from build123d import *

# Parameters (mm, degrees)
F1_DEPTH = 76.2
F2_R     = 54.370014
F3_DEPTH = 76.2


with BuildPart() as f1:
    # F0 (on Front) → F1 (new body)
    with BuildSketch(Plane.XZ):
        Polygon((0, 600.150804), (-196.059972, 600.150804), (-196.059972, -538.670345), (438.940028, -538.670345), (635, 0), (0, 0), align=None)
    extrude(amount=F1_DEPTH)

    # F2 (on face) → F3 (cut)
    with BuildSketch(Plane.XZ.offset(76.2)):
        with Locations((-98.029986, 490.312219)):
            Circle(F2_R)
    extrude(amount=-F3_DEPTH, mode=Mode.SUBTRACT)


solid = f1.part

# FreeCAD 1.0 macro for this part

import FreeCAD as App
import Part
import Sketcher
from FreeCAD import Vector
Q = App.Units.Quantity


def add_polygon(sketch, points):
    """Adds a closed chain of lines whose ends are joined by coincident constraints."""
    first, n = sketch.GeometryCount, len(points)
    for a, b in zip(points, points[1:] + points[:1]):
        sketch.addGeometry(Part.LineSegment(App.Vector(*a, 0), App.Vector(*b, 0)), False)
    for i in range(n):
        sketch.addConstraint(Sketcher.Constraint("Coincident", first + i, 2, first + (i + 1) % n, 1))

doc = App.newDocument("Part")
body = doc.addObject("PartDesign::Body", "Body")

# Sketch on XZ plane
sketch1 = doc.addObject("Sketcher::SketchObject", "Sketch")
body.addObject(sketch1)
sketch1.AttachmentSupport = (doc.XZ_Plane, [""])
sketch1.MapMode = "FlatFace"
add_polygon(sketch1, [(0, 600), (-196, 600), (-196, -539), (439, -539), (635, 0), (0, 0)])  # lines 0-5
sketch1.addConstraint([
    Sketcher.Constraint("Horizontal", 0),
    Sketcher.Constraint("Vertical", 1),
    Sketcher.Constraint("Horizontal", 2),
    Sketcher.Constraint("Horizontal", 4),
    Sketcher.Constraint("Vertical", 5),
    Sketcher.Constraint("Coincident", 4, 2, -1, 1),
    Sketcher.Constraint("Equal", 2, 4),
    Sketcher.Constraint("DistanceX", 2, 1, 2, 2, Q("25 in")),
    Sketcher.Constraint("Angle", 3, Q("70 deg")),
    Sketcher.Constraint("DistanceX", 0, 2, 0, 1, 196.059972),
    Sketcher.Constraint("DistanceY", 1, 2, 1, 1, 1138.821149),
])
pad1 = doc.addObject("PartDesign::Pad", "Pad")
body.addObject(pad1)
pad1.Profile = sketch1
pad1.Length = Q("3 in")

# Sketch on XZ plane
sketch2 = doc.addObject("Sketcher::SketchObject", "Sketch001")
body.addObject(sketch2)
sketch2.AttachmentSupport = (doc.XZ_Plane, [""])
sketch2.MapMode = "FlatFace"
sketch2.AttachmentOffset = App.Placement(Vector(0, 0, 3 * 25.4), App.Rotation())
sketch2.addGeometry(Part.Circle(Vector(-98, 490, 0), Vector(0, 0, 1), 54), False)
sketch2.addConstraint([
    Sketcher.Constraint("Diameter", 0, 108.740028),
    Sketcher.Constraint("DistanceY", -1, 1, 0, 3, 490.312219),
    Sketcher.Constraint("DistanceX", 0, 3, -1, 1, 98.029986),
])
pocket1 = doc.addObject("PartDesign::Pocket", "Pocket")
body.addObject(pocket1)
pocket1.Profile = sketch2
pocket1.Length = Q("3 in")

doc.recompute()
